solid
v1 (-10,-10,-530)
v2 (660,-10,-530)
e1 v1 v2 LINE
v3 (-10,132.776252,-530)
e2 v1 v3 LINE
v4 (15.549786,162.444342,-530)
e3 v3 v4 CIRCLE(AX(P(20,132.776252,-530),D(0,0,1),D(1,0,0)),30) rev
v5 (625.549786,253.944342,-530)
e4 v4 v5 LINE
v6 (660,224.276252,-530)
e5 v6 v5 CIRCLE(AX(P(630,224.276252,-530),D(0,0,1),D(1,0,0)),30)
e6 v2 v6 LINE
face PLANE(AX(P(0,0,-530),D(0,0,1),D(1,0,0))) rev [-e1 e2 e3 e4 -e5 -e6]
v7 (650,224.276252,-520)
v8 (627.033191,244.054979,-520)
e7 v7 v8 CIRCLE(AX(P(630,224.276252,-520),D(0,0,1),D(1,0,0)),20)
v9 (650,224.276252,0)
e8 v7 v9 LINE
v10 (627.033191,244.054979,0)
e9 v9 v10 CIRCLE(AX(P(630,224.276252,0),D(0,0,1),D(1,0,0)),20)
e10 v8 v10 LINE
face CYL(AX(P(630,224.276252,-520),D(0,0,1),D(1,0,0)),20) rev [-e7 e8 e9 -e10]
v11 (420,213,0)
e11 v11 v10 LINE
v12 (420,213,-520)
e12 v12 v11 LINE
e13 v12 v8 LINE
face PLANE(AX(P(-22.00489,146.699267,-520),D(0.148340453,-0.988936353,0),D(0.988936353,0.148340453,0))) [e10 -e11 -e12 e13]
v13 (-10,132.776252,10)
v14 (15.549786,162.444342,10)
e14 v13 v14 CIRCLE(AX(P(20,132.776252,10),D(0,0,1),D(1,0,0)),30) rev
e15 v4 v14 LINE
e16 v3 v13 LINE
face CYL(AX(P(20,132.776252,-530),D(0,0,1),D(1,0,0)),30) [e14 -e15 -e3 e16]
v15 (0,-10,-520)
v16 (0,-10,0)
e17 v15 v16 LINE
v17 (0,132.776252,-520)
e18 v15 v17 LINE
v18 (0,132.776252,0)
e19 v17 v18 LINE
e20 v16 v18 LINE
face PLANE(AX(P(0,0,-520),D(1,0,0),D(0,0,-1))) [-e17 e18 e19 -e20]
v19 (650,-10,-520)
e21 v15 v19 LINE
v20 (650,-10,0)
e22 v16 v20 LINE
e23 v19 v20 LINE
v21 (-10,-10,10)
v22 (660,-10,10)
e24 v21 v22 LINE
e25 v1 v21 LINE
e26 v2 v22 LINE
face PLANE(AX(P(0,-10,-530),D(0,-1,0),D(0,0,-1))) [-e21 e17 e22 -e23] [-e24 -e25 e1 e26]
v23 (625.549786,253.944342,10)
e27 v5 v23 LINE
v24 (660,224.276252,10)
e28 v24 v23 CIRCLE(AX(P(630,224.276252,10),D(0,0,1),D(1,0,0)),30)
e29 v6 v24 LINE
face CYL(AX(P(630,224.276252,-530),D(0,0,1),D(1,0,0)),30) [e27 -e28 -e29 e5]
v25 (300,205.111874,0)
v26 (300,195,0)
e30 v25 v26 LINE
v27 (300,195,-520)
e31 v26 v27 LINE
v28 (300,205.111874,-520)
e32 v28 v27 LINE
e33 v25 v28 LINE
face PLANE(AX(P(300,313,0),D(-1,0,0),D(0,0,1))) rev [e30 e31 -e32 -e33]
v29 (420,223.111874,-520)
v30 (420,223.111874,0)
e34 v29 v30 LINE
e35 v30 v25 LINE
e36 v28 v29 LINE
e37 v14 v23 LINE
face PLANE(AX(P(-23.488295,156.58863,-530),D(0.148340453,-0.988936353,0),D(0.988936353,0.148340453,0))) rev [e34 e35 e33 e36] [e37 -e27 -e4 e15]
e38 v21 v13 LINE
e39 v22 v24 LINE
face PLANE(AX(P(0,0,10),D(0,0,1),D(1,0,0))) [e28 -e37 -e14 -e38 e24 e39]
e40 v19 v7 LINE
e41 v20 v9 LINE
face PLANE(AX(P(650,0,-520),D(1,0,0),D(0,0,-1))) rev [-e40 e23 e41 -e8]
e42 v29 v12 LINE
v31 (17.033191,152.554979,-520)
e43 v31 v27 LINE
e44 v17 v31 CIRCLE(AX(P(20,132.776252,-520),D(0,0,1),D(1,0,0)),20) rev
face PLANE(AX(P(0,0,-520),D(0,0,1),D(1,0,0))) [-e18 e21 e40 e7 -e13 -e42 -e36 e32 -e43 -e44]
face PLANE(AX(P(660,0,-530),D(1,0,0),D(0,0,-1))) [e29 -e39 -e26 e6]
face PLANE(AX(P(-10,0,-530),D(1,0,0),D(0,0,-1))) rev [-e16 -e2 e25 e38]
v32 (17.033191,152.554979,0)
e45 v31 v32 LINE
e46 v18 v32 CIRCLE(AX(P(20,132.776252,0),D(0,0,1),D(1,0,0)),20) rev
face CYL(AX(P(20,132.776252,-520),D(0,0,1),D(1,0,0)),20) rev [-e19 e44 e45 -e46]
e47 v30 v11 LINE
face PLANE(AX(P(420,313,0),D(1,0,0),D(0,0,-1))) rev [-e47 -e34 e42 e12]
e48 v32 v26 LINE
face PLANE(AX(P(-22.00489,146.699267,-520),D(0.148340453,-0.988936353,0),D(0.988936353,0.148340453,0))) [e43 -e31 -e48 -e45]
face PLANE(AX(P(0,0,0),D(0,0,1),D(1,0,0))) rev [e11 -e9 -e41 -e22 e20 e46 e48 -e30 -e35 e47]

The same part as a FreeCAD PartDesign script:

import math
import FreeCAD as App
import Part
import Sketcher

V = App.Vector


def add_polygon(sketch, points):
    """Adds a closed chain of lines whose ends are joined by coincident constraints."""
    first, n = sketch.GeometryCount, len(points)
    for a, b in zip(points, points[1:] + points[:1]):
        sketch.addGeometry(Part.LineSegment(App.Vector(*a, 0), App.Vector(*b, 0)), False)
    for i in range(n):
        sketch.addConstraint(Sketcher.Constraint("Coincident", first + i, 2, first + (i + 1) % n, 1))

doc = App.newDocument("Part")
params = doc.addObject("Spreadsheet::Sheet", "Params")
for row, (alias, value) in enumerate([
    ("sketch1_radius", "30 mm"),
    ("sketch1_width", "670 mm"),
    ("pad1_length", "530 mm"),
    ("sketch2_radius", "20 mm"),
    ("sketch2_width", "650 mm"),
    ("pocket1_length", "520 mm"),
    ("sketch3_radius", "30 mm"),
    ("sketch3_width", "670 mm"),
    ("pad2_length", "10 mm"),
    ("sketch4_width", "120 mm"),
    ("sketch4_height", "520 mm"),
    ("pocket2_length", "313 mm"),
], start=1):
    params.set(f"A{row}", alias)
    params.set(f"B{row}", "=" + value)
    params.setAlias(f"B{row}", alias)

body = doc.addObject("PartDesign::Body", "Body")

sketch1 = body.newObject("Sketcher::SketchObject", "Sketch")
sketch1.AttachmentSupport = (doc.getObject("XY_Plane"), [""])
sketch1.MapMode = "FlatFace"
sketch1.addGeometry([
    Part.LineSegment(V(660, -10, 0), V(660, 224.276252, 0)),
    Part.ArcOfCircle(Part.Circle(V(630, 224.276252, 0), V(0, 0, 1), 30), math.radians(0), math.radians(98.530766)),
    Part.LineSegment(V(625.549786, 253.944342, 0), V(15.549786, 162.444342, 0)),
    Part.ArcOfCircle(Part.Circle(V(20, 132.776252, 0), V(0, 0, 1), 30), math.radians(98.530766), math.radians(180)),
    Part.LineSegment(V(-10, 132.776252, 0), V(-10, -10, 0)),
    Part.LineSegment(V(-10, -10, 0), V(660, -10, 0)),
], False)
sketch1.addConstraint([
    Sketcher.Constraint("Tangent", 0, 2, 1, 1),
    Sketcher.Constraint("Tangent", 1, 2, 2, 1),
    Sketcher.Constraint("Tangent", 2, 2, 3, 1),
    Sketcher.Constraint("Tangent", 3, 2, 4, 1),
    Sketcher.Constraint("Coincident", 4, 2, 5, 1),
    Sketcher.Constraint("Coincident", 5, 2, 0, 1),
    Sketcher.Constraint("Vertical", 0),
    Sketcher.Constraint("Vertical", 4),
    Sketcher.Constraint("Horizontal", 5),
    Sketcher.Constraint("Equal", 1, 3),
    Sketcher.Constraint("Radius", 1, 30.0),
    Sketcher.Constraint("DistanceX", 5, 1, 5, 2, 670.0),
    Sketcher.Constraint("DistanceX", -1, 1, 1, 3, 630.0),
    Sketcher.Constraint("DistanceY", 4, 2, -1, 1, 10.0),
    Sketcher.Constraint("DistanceY", 3, 3, 1, 3, 91.5),
    Sketcher.Constraint("DistanceY", 0, 1, 0, 2, 234.276252),
])
sketch1.setExpression("Constraints[10]", "Params.sketch1_radius")
sketch1.setExpression("Constraints[11]", "Params.sketch1_width")
pad1 = body.newObject("PartDesign::Pad", "Pad")
pad1.Profile = sketch1
pad1.setExpression("Length", "Params.pad1_length")
pad1.Reversed = True

sketch2 = body.newObject("Sketcher::SketchObject", "Sketch001")
sketch2.AttachmentSupport = (doc.getObject("XY_Plane"), [""])
sketch2.MapMode = "FlatFace"
sketch2.addGeometry([
    Part.ArcOfCircle(Part.Circle(V(630, 224.276252, 0), V(0, 0, 1), 20), math.radians(0), math.radians(98.530766)),
    Part.LineSegment(V(627.033191, 244.054979, 0), V(17.033191, 152.554979, 0)),
    Part.ArcOfCircle(Part.Circle(V(20, 132.776252, 0), V(0, 0, 1), 20), math.radians(98.530766), math.radians(180)),
    Part.LineSegment(V(0, 132.776252, 0), V(0, -10, 0)),
    Part.LineSegment(V(0, -10, 0), V(650, -10, 0)),
    Part.LineSegment(V(650, -10, 0), V(650, 224.276252, 0)),
], False)
sketch2.addConstraint([
    Sketcher.Constraint("Tangent", 0, 2, 1, 1),
    Sketcher.Constraint("Tangent", 1, 2, 2, 1),
    Sketcher.Constraint("Tangent", 2, 2, 3, 1),
    Sketcher.Constraint("Coincident", 3, 2, 4, 1),
    Sketcher.Constraint("Coincident", 4, 2, 5, 1),
    Sketcher.Constraint("Tangent", 5, 2, 0, 1),
    Sketcher.Constraint("Vertical", 3),
    Sketcher.Constraint("Horizontal", 4),
    Sketcher.Constraint("Vertical", 5),
    Sketcher.Constraint("Equal", 0, 2),
    Sketcher.Constraint("PointOnObject", 2, 2, -2),
    Sketcher.Constraint("Radius", 0, 20.0),
    Sketcher.Constraint("DistanceX", 4, 1, 4, 2, 650.0),
    Sketcher.Constraint("DistanceY", 3, 2, -1, 1, 10.0),
    Sketcher.Constraint("DistanceY", 2, 3, 0, 3, 91.5),
    Sketcher.Constraint("DistanceY", 3, 2, 3, 1, 142.776252),
])
sketch2.setExpression("Constraints[11]", "Params.sketch2_radius")
sketch2.setExpression("Constraints[12]", "Params.sketch2_width")
pocket1 = body.newObject("PartDesign::Pocket", "Pocket")
pocket1.Profile = sketch2
pocket1.setExpression("Length", "Params.pocket1_length")

sketch3 = body.newObject("Sketcher::SketchObject", "Sketch002")
sketch3.AttachmentSupport = (doc.getObject("XY_Plane"), [""])
sketch3.MapMode = "FlatFace"
sketch3.AttachmentOffset = App.Placement(V(0, 0, 10), App.Rotation())
sketch3.addGeometry([
    Part.LineSegment(V(660, -10, 0), V(660, 224.276252, 0)),
    Part.ArcOfCircle(Part.Circle(V(630, 224.276252, 0), V(0, 0, 1), 30), math.radians(0), math.radians(98.530766)),
    Part.LineSegment(V(625.549786, 253.944342, 0), V(15.549786, 162.444342, 0)),
    Part.ArcOfCircle(Part.Circle(V(20, 132.776252, 0), V(0, 0, 1), 30), math.radians(98.530766), math.radians(180)),
    Part.LineSegment(V(-10, 132.776252, 0), V(-10, -10, 0)),
    Part.LineSegment(V(-10, -10, 0), V(660, -10, 0)),
], False)
sketch3.addConstraint([
    Sketcher.Constraint("Tangent", 0, 2, 1, 1),
    Sketcher.Constraint("Tangent", 1, 2, 2, 1),
    Sketcher.Constraint("Tangent", 2, 2, 3, 1),
    Sketcher.Constraint("Tangent", 3, 2, 4, 1),
    Sketcher.Constraint("Coincident", 4, 2, 5, 1),
    Sketcher.Constraint("Coincident", 5, 2, 0, 1),
    Sketcher.Constraint("Vertical", 0),
    Sketcher.Constraint("Vertical", 4),
    Sketcher.Constraint("Horizontal", 5),
    Sketcher.Constraint("Equal", 1, 3),
    Sketcher.Constraint("Radius", 1, 30.0),
    Sketcher.Constraint("DistanceX", 5, 1, 5, 2, 670.0),
    Sketcher.Constraint("DistanceX", -1, 1, 1, 3, 630.0),
    Sketcher.Constraint("DistanceY", 4, 2, -1, 1, 10.0),
    Sketcher.Constraint("DistanceY", 3, 3, 1, 3, 91.5),
    Sketcher.Constraint("DistanceY", 0, 1, 0, 2, 234.276252),
])
sketch3.setExpression("Constraints[10]", "Params.sketch3_radius")
sketch3.setExpression("Constraints[11]", "Params.sketch3_width")
pad2 = body.newObject("PartDesign::Pad", "Pad001")
pad2.Profile = sketch3
pad2.setExpression("Length", "Params.pad2_length")
pad2.Reversed = True

sketch4 = body.newObject("Sketcher::SketchObject", "Sketch003")
sketch4.AttachmentSupport = (doc.getObject("XZ_Plane"), [""])
sketch4.MapMode = "FlatFace"
add_polygon(sketch4, [(300, -520), (300, 0), (420, 0), (420, -520)])
sketch4.addConstraint([
    Sketcher.Constraint("Vertical", 0),
    Sketcher.Constraint("Horizontal", 1),
    Sketcher.Constraint("Vertical", 2),
    Sketcher.Constraint("Horizontal", 3),
    Sketcher.Constraint("PointOnObject", 0, 2, -1),
    Sketcher.Constraint("DistanceX", 1, 1, 1, 2, 120.0),
    Sketcher.Constraint("DistanceY", 0, 1, 0, 2, 520.0),
    Sketcher.Constraint("DistanceX", -1, 1, 0, 2, 300.0),
])
sketch4.setExpression("Constraints[9]", "Params.sketch4_width")
sketch4.setExpression("Constraints[10]", "Params.sketch4_height")
pocket2 = body.newObject("PartDesign::Pocket", "Pocket001")
pocket2.Profile = sketch4
pocket2.setExpression("Length", "Params.pocket2_length")

doc.recompute()
